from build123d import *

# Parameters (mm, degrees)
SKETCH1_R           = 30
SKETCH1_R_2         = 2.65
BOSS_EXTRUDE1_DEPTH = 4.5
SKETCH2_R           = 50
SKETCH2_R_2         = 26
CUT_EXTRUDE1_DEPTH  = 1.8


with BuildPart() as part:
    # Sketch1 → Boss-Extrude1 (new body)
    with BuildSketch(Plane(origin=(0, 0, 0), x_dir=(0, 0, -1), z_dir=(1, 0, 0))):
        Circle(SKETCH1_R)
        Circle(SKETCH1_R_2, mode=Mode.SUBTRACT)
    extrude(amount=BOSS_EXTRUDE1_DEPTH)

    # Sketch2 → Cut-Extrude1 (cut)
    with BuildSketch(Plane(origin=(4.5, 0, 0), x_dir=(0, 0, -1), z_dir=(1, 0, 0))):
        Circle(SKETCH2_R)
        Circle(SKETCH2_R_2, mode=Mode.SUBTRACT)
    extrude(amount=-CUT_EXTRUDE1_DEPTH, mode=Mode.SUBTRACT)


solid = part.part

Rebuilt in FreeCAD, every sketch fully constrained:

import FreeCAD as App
import Part
import Sketcher
Q = App.Units.Quantity

doc = App.newDocument("Part")
body = doc.addObject("PartDesign::Body", "Body")

sketch1 = body.newObject("Sketcher::SketchObject", "Sketch")
sketch1.AttachmentSupport = (doc.getObject("YZ_Plane"), [""])
sketch1.MapMode = "FlatFace"
sketch1.addGeometry(Part.Circle(App.Vector(0, 0, 0), App.Vector(0, 0, 1), 30), False)
sketch1.addGeometry(Part.Circle(App.Vector(0, 0, 0), App.Vector(0, 0, 1), 2.6), False)
sketch1.addConstraint(Sketcher.Constraint("Coincident", 0, 3, -1, 1))
sketch1.addConstraint(Sketcher.Constraint("Coincident", 1, 3, -1, 1))
sketch1.addConstraint(Sketcher.Constraint("Diameter", 0, Q("60 mm")))
sketch1.addConstraint(Sketcher.Constraint("Diameter", 1, Q("5.3 mm")))
pad1 = body.newObject("PartDesign::Pad", "Pad")
pad1.Profile = sketch1
pad1.Length = 4.5

sketch2 = body.newObject("Sketcher::SketchObject", "Sketch001")
sketch2.AttachmentSupport = (doc.getObject("YZ_Plane"), [""])
sketch2.MapMode = "FlatFace"
sketch2.AttachmentOffset = App.Placement(App.Vector(0, 0, 4.5), App.Rotation())
sketch2.addGeometry(Part.Circle(App.Vector(0, 0, 0), App.Vector(0, 0, 1), 50), False)
sketch2.addGeometry(Part.Circle(App.Vector(0, 0, 0), App.Vector(0, 0, 1), 26), False)
sketch2.addConstraint(Sketcher.Constraint("Coincident", 0, 3, -1, 1))
sketch2.addConstraint(Sketcher.Constraint("Coincident", 1, 3, -1, 1))
sketch2.addConstraint(Sketcher.Constraint("Diameter", 0, Q("100 mm")))
sketch2.addConstraint(Sketcher.Constraint("Diameter", 1, Q("52 mm")))
pocket1 = body.newObject("PartDesign::Pocket", "Pocket")
pocket1.Profile = sketch2
pocket1.Length = 1.8

doc.recompute()
